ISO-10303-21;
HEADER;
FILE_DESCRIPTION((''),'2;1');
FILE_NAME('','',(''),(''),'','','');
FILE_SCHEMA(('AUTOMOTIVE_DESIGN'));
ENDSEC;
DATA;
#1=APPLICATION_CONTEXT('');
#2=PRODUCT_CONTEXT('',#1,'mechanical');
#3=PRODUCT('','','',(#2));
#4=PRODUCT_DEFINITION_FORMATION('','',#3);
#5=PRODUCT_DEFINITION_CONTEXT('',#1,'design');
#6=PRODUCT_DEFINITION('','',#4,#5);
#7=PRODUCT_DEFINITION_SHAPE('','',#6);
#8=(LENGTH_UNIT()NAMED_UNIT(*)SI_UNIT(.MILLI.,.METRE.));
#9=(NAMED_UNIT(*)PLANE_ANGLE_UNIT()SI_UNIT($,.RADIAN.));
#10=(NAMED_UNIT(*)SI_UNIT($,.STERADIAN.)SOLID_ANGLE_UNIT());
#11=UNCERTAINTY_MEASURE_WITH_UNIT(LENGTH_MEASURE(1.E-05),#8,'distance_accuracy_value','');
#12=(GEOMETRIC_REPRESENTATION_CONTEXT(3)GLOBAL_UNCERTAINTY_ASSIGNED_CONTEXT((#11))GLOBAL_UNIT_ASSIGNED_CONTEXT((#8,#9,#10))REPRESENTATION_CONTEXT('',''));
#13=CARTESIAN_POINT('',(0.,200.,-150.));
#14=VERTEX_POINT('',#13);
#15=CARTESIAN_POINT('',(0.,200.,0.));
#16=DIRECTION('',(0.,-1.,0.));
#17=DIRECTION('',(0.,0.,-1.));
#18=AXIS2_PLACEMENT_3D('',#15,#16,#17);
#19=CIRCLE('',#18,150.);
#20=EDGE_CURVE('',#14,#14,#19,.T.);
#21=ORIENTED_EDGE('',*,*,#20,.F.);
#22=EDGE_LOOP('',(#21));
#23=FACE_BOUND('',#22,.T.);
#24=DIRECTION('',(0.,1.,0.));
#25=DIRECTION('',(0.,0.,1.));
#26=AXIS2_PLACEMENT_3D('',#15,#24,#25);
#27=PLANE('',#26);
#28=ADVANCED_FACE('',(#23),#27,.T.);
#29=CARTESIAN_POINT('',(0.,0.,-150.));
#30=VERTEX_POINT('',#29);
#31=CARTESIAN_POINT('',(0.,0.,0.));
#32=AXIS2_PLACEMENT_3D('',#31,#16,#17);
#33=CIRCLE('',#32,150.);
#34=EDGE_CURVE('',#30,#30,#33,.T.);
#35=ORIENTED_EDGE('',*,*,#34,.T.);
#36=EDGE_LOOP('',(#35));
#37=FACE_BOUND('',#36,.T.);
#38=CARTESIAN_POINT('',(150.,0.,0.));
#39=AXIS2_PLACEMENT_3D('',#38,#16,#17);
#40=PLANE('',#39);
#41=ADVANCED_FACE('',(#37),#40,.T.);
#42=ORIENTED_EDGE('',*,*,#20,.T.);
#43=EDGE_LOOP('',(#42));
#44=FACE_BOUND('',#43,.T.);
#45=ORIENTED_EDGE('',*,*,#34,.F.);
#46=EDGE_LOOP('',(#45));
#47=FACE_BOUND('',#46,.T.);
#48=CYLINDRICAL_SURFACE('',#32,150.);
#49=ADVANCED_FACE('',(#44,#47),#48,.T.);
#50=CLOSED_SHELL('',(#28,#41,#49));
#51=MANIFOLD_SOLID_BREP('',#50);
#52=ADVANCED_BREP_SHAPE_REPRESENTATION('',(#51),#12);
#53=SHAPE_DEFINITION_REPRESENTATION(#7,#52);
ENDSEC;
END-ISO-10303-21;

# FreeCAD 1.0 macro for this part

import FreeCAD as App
import Part
import Sketcher


def add_polygon(sketch, points):
    """Adds a closed chain of lines whose ends are joined by coincident constraints."""
    first, n = sketch.GeometryCount, len(points)
    for a, b in zip(points, points[1:] + points[:1]):
        sketch.addGeometry(Part.LineSegment(App.Vector(*a, 0), App.Vector(*b, 0)), False)
    for i in range(n):
        sketch.addConstraint(Sketcher.Constraint("Coincident", first + i, 2, first + (i + 1) % n, 1))

doc = App.newDocument("Part")
params = doc.addObject("Spreadsheet::Sheet", "Params")
for row, (alias, value) in enumerate([
    ("sketch1_width", "150 mm"),
    ("sketch1_height", "200 mm"),
    ("revolution_angle", "360 deg"),
], start=1):
    params.set(f"A{row}", alias)
    params.set(f"B{row}", "=" + value)
    params.setAlias(f"B{row}", alias)

body = doc.addObject("PartDesign::Body", "Body")

# Sketch on XY plane
sketch1 = doc.addObject("Sketcher::SketchObject", "Sketch")
body.addObject(sketch1)
sketch1.AttachmentSupport = (doc.XY_Plane, [""])
sketch1.MapMode = "FlatFace"
add_polygon(sketch1, [(0, 200), (0, 0), (150, 0), (150, 200)])  # lines 0-3
sketch1.addConstraint([
    Sketcher.Constraint("Vertical", 0),
    Sketcher.Constraint("Horizontal", 1),
    Sketcher.Constraint("Vertical", 2),
    Sketcher.Constraint("Horizontal", 3),
    Sketcher.Constraint("Coincident", 0, 2, -1, 1),
    Sketcher.Constraint("DistanceX", 1, 1, 1, 2, 150.0),
    Sketcher.Constraint("DistanceY", 0, 2, 0, 1, 200.0),
])
sketch1.setExpression("Constraints[9]", "Params.sketch1_width")
sketch1.setExpression("Constraints[10]", "Params.sketch1_height")
revolution = doc.addObject("PartDesign::Revolution", "Revolution")
body.addObject(revolution)
revolution.Profile = sketch1
revolution.ReferenceAxis = (sketch1, ["V_Axis"])
revolution.setExpression("Angle", "Params.revolution_angle")

doc.recompute()
